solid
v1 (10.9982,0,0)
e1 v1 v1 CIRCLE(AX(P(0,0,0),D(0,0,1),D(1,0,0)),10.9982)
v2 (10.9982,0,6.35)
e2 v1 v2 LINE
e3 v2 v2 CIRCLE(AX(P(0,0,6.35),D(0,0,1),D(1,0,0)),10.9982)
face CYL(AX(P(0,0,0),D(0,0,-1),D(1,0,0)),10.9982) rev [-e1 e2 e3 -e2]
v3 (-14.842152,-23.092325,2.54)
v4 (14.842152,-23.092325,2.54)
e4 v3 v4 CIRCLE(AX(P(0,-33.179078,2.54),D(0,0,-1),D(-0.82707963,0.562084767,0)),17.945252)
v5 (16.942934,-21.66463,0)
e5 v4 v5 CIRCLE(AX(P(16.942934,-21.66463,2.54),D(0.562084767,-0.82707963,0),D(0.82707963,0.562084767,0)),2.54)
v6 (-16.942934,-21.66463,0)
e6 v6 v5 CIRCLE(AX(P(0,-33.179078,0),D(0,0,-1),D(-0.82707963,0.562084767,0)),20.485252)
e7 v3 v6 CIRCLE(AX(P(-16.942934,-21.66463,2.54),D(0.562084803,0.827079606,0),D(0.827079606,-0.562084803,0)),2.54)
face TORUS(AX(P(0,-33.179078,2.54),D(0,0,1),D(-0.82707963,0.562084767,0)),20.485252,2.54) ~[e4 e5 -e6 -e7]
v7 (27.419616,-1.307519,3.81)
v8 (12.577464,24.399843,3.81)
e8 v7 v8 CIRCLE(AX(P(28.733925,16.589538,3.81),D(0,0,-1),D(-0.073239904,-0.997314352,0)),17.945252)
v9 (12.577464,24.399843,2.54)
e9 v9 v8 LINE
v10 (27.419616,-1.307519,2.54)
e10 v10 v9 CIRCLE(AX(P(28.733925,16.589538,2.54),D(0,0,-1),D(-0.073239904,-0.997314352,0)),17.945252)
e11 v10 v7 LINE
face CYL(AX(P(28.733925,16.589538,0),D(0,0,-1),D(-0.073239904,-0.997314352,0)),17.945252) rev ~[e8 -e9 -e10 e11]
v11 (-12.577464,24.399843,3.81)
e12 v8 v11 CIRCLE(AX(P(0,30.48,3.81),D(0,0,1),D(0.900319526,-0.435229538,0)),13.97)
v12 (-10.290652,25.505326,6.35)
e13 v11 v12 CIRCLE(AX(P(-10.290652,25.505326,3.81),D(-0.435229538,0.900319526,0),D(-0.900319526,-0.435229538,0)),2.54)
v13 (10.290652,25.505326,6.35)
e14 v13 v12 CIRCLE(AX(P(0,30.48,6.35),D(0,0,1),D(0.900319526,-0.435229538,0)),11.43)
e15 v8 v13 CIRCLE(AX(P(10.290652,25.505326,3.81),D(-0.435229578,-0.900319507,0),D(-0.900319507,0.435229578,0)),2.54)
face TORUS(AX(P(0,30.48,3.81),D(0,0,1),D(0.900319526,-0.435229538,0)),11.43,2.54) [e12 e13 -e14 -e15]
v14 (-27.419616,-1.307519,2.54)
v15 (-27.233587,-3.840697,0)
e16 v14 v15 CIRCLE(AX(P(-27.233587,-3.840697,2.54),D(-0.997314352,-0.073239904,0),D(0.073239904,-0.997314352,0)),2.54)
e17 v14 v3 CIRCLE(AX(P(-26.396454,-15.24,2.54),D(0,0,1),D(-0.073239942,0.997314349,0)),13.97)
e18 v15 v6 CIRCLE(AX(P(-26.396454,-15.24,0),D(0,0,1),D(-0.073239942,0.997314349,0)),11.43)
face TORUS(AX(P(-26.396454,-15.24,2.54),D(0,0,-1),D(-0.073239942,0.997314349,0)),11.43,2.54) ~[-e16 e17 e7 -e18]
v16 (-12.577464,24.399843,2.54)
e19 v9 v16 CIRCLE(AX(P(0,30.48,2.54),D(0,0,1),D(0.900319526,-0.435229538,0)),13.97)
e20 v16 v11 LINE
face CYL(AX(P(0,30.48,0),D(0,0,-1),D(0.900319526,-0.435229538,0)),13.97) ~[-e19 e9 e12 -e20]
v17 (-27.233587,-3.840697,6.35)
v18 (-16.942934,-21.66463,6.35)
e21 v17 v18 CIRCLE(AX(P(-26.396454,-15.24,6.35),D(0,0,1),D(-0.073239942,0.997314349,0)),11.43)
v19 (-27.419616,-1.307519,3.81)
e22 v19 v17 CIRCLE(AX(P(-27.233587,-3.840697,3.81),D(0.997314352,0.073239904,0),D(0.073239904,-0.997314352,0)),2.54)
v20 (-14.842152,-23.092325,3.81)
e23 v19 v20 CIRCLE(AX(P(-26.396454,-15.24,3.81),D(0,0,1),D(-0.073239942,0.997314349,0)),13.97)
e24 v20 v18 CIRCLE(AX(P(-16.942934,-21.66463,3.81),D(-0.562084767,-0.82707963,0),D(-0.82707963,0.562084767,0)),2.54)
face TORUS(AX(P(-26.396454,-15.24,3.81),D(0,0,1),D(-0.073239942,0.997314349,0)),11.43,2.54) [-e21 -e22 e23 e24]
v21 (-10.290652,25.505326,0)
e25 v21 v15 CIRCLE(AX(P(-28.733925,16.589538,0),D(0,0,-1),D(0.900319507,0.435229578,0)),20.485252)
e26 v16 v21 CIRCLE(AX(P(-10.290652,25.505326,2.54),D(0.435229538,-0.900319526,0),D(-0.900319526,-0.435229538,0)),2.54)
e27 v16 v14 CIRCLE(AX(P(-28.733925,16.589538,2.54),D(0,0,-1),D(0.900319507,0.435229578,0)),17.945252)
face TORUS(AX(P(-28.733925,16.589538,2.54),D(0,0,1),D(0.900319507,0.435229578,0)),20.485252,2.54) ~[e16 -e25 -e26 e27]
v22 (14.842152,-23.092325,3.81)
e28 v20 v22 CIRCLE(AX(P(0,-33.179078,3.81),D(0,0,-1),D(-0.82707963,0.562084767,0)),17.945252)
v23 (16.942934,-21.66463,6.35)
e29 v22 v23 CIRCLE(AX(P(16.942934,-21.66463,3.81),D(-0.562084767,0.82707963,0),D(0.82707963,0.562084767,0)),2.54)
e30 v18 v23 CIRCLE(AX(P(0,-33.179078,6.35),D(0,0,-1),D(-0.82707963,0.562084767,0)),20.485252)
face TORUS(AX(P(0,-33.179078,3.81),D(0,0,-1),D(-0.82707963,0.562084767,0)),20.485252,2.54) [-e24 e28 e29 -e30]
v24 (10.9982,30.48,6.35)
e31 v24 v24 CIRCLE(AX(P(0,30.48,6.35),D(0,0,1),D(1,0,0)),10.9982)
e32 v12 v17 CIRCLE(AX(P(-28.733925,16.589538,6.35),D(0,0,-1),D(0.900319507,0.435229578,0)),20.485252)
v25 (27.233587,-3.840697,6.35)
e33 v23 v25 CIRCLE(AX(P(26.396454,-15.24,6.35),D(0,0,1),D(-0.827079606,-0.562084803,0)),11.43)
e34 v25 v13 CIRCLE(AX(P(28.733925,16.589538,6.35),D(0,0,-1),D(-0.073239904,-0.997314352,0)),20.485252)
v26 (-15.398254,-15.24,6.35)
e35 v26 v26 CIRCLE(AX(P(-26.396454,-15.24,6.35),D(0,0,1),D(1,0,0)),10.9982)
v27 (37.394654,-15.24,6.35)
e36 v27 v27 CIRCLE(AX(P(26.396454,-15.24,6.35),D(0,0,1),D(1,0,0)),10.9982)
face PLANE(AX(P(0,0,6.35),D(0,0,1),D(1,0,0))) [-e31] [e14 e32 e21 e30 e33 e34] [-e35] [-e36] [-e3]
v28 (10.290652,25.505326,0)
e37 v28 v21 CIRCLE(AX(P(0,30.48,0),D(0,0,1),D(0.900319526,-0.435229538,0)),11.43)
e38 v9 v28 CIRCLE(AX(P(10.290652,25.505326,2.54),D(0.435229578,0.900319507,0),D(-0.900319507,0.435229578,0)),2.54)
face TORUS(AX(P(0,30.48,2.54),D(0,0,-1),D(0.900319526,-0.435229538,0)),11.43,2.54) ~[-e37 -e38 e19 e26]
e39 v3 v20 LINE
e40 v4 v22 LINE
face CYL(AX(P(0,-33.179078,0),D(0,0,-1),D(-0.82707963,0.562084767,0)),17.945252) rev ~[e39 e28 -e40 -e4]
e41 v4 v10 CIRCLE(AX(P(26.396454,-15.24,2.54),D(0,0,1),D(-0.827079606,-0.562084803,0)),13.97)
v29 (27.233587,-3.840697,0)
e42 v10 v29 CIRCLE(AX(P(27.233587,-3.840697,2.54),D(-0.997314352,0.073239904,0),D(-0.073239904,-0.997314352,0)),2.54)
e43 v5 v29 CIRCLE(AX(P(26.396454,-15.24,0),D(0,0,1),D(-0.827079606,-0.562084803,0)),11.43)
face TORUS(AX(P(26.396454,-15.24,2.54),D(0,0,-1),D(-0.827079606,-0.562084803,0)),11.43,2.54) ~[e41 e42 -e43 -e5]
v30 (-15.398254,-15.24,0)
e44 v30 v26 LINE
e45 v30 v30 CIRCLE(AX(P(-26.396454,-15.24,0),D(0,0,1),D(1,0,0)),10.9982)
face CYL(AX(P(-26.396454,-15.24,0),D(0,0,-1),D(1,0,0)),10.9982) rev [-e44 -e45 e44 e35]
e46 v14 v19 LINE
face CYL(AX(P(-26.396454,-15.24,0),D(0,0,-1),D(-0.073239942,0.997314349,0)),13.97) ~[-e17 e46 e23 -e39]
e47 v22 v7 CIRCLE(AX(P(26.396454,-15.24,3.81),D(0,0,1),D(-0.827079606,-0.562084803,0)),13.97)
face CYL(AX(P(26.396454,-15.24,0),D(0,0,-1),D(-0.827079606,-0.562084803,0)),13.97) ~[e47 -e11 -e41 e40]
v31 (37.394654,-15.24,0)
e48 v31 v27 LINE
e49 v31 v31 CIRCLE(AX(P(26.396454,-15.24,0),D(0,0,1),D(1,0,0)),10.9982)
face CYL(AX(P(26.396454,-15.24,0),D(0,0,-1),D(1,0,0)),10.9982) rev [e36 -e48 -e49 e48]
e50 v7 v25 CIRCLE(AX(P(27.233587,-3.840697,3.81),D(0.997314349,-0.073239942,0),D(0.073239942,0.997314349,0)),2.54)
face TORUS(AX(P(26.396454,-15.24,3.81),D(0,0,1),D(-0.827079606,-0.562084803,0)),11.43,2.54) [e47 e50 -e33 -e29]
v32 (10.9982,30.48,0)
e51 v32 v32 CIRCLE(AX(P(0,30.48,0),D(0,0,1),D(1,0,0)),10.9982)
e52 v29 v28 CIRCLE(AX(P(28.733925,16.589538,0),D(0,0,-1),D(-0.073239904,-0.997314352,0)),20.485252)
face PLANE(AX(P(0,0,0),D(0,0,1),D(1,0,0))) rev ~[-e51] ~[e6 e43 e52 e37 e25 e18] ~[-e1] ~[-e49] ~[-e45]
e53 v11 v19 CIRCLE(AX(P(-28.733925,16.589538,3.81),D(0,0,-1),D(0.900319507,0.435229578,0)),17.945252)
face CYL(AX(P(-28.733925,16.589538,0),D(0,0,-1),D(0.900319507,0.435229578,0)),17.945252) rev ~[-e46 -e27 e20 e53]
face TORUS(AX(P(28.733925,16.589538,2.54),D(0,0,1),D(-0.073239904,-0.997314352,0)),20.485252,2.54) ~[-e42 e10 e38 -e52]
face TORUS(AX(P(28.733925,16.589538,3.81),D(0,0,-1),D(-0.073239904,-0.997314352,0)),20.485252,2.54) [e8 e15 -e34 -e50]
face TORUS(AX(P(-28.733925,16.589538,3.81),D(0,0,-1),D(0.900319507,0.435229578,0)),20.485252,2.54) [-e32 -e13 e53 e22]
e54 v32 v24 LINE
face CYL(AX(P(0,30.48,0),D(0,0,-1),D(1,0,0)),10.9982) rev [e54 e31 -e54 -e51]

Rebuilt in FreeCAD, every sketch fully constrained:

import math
import FreeCAD as App
import Part
import Sketcher

V = App.Vector
Q = App.Units.Quantity


def edges_at(feature, points):
    """Names of the edges that pass closest to the given points."""
    edges = feature.Shape.Edges
    near = lambda p: min(range(len(edges)), key=lambda i: edges[i].distToShape(Part.Vertex(*p))[0])
    return sorted({f"Edge{near(p) + 1}" for p in points})

doc = App.newDocument("Part")
body = doc.addObject("PartDesign::Body", "Body")

# Sketch on XY plane
sketch1 = body.newObject("Sketcher::SketchObject", "Sketch")
sketch1.AttachmentSupport = (doc.getObject("XY_Plane"), [""])
sketch1.MapMode = "FlatFace"
sketch1.addGeometry([
    Part.ArcOfCircle(Part.Circle(V(29, 17, 0), V(0, 0, 1), 18), math.radians(154), math.radians(266)),  # 0
    Part.ArcOfCircle(Part.Circle(V(0, 30, 0), V(0, 0, 1), 14), math.radians(-26), math.radians(206)),  # 1
    Part.ArcOfCircle(Part.Circle(V(-29, 17, 0), V(0, 0, 1), 18), math.radians(-86), math.radians(26)),  # 2
    Part.ArcOfCircle(Part.Circle(V(-26, -15, 0), V(0, 0, 1), 14), math.radians(94), math.radians(326)),  # 3
    Part.ArcOfCircle(Part.Circle(V(0, -33, 0), V(0, 0, 1), 18), math.radians(34), math.radians(146)),  # 4
    Part.ArcOfCircle(Part.Circle(V(26, -15, 0), V(0, 0, 1), 14), math.radians(-146), math.radians(86)),  # 5
    Part.Circle(V(-26, -15, 0), V(0, 0, 1), 11),  # 6
    Part.Circle(V(26, -15, 0), V(0, 0, 1), 11),  # 7
    Part.Circle(V(0, 0, 0), V(0, 0, 1), 11),  # 8
    Part.Circle(V(0, 30, 0), V(0, 0, 1), 11),  # 9
], False)
sketch1.addConstraint([
    Sketcher.Constraint("Tangent", 0, 1, 1, 1),
    Sketcher.Constraint("Tangent", 1, 2, 2, 2),
    Sketcher.Constraint("Tangent", 2, 1, 3, 1),
    Sketcher.Constraint("Tangent", 3, 2, 4, 2),
    Sketcher.Constraint("Tangent", 4, 1, 5, 1),
    Sketcher.Constraint("Tangent", 5, 2, 0, 2),
    Sketcher.Constraint("Coincident", 8, 3, -1, 1),
    Sketcher.Constraint("Coincident", 6, 3, 3, 3),
    Sketcher.Constraint("Coincident", 7, 3, 5, 3),
    Sketcher.Constraint("Coincident", 9, 3, 1, 3),
    Sketcher.Constraint("Equal", 0, 2),
    Sketcher.Constraint("Equal", 1, 3),
    Sketcher.Constraint("Equal", 2, 4),
    Sketcher.Constraint("Equal", 3, 5),
    Sketcher.Constraint("Equal", 6, 7),
    Sketcher.Constraint("Equal", 7, 8),
    Sketcher.Constraint("Equal", 8, 9),
    Sketcher.Constraint("Symmetric", 0, 3, 2, 3, -2),
    Sketcher.Constraint("PointOnObject", 4, 3, -2),
    Sketcher.Constraint("Radius", 1, Q("0.55 in")),
    Sketcher.Constraint("Diameter", 6, Q("0.866 in")),
    Sketcher.Constraint("DistanceY", -1, 1, 1, 3, Q("1.2 in")),
    Sketcher.Constraint("DistanceY", 3, 3, -1, 1, Q("0.6 in")),
    Sketcher.Constraint("Radius", 4, Q("17.945252 mm")),
    Sketcher.Constraint("DistanceY", -1, 1, 0, 3, Q("16.589538 mm")),
])
pad1 = body.newObject("PartDesign::Pad", "Pad")
pad1.Profile = sketch1
pad1.Length = Q("0.25 in")
doc.recompute()

fillet = body.newObject("PartDesign::Fillet", "Fillet")
fillet.Base = (pad1, edges_at(pad1, [(0, -15.234, 6.35), (13.193, 7.617, 0)]))
fillet.Radius = Q("0.1 in")

doc.recompute()
